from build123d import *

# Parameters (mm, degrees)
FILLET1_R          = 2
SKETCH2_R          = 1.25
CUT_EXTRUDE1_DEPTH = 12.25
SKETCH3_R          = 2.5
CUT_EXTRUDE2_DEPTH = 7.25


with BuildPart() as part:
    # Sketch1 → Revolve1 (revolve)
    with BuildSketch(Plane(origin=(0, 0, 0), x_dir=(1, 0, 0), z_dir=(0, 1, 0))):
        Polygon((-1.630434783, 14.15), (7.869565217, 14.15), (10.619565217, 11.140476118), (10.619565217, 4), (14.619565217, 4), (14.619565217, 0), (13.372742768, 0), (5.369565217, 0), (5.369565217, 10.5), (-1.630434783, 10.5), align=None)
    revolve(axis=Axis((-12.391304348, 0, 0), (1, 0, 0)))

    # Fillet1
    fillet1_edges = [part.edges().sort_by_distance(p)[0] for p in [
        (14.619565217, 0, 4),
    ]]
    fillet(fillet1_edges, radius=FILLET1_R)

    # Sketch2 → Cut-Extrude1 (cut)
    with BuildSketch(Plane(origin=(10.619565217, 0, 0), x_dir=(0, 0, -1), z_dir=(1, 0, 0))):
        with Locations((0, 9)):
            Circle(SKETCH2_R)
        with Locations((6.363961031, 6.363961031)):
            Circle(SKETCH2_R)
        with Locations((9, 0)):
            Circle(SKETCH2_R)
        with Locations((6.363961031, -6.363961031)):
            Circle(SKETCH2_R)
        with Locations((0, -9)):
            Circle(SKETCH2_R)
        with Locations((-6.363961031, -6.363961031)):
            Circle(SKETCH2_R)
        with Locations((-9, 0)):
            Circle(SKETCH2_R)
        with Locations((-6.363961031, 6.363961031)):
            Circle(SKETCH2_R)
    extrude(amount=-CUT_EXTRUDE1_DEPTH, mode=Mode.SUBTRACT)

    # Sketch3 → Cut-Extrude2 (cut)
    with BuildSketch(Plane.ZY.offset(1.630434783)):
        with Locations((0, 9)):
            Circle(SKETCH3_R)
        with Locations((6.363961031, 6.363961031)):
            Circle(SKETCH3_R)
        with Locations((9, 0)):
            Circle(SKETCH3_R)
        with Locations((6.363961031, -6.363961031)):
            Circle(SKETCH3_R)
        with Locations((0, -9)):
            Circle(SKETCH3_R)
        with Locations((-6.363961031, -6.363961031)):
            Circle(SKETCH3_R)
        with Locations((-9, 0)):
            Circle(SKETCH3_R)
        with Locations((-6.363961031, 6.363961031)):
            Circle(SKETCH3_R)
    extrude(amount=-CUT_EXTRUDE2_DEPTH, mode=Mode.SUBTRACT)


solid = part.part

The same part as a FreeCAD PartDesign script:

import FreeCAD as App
import Part
import Sketcher

V = App.Vector
Q = App.Units.Quantity


def edges_at(feature, points):
    """Names of the edges that pass closest to the given points."""
    edges = feature.Shape.Edges
    near = lambda p: min(range(len(edges)), key=lambda i: edges[i].distToShape(Part.Vertex(*p))[0])
    return sorted({f"Edge{near(p) + 1}" for p in points})

doc = App.newDocument("Part")
params = doc.addObject("Spreadsheet::Sheet", "Params")
for row, (alias, value) in enumerate([
    ("sketch1_width", "7 mm"),
    ("sketch1_width2", "4 mm"),
    ("sketch1_width3", "9.5 mm"),
    ("sketch1_height", "10.5 mm"),
    ("sketch1_width4", "9.25 mm"),
    ("revolution_angle", "360 deg"),
    ("fillet_radius", "2 mm"),
    ("sketch2_diameter", "2.5 mm"),
    ("pocket1_length", "12.25 mm"),
    ("sketch3_diameter", "5 mm"),
    ("pocket2_length", "7.25 mm"),
], start=1):
    params.set(f"A{row}", alias)
    params.set(f"B{row}", "=" + value)
    params.setAlias(f"B{row}", alias)

body = doc.addObject("PartDesign::Body", "Body")

# Sketch on XZ plane
sketch1 = body.newObject("Sketcher::SketchObject", "Sketch")
sketch1.AttachmentSupport = (doc.getObject("XZ_Plane"), [""])
sketch1.MapMode = "FlatFace"
sketch1.addGeometry(Part.LineSegment(V(7.9, -14.2, 0), V(-1.6, -14.2, 0)), False)
sketch1.addGeometry(Part.LineSegment(V(-1.6, -14.2, 0), V(-1.6, -10.5, 0)), False)
sketch1.addGeometry(Part.LineSegment(V(-1.6, -10.5, 0), V(5.4, -10.5, 0)), False)
sketch1.addGeometry(Part.LineSegment(V(5.4, -10.5, 0), V(5.4, 0, 0)), False)
sketch1.addGeometry(Part.LineSegment(V(5.4, 0, 0), V(14.6, 0, 0)), False)
sketch1.addGeometry(Part.LineSegment(V(14.6, 0, 0), V(14.6, -4, 0)), False)
sketch1.addGeometry(Part.LineSegment(V(14.6, -4, 0), V(10.6, -4, 0)), False)
sketch1.addGeometry(Part.LineSegment(V(10.6, -4, 0), V(10.6, -11.1, 0)), False)
sketch1.addGeometry(Part.LineSegment(V(10.6, -11.1, 0), V(7.9, -14.2, 0)), False)
sketch1.addConstraint(Sketcher.Constraint("Coincident", 0, 2, 1, 1))
sketch1.addConstraint(Sketcher.Constraint("Coincident", 1, 2, 2, 1))
sketch1.addConstraint(Sketcher.Constraint("Coincident", 2, 2, 3, 1))
sketch1.addConstraint(Sketcher.Constraint("Coincident", 3, 2, 4, 1))
sketch1.addConstraint(Sketcher.Constraint("Coincident", 4, 2, 5, 1))
sketch1.addConstraint(Sketcher.Constraint("Coincident", 5, 2, 6, 1))
sketch1.addConstraint(Sketcher.Constraint("Coincident", 6, 2, 7, 1))
sketch1.addConstraint(Sketcher.Constraint("Coincident", 7, 2, 8, 1))
sketch1.addConstraint(Sketcher.Constraint("Coincident", 8, 2, 0, 1))
sketch1.addConstraint(Sketcher.Constraint("Horizontal", 0))
sketch1.addConstraint(Sketcher.Constraint("Vertical", 1))
sketch1.addConstraint(Sketcher.Constraint("Horizontal", 2))
sketch1.addConstraint(Sketcher.Constraint("Vertical", 3))
sketch1.addConstraint(Sketcher.Constraint("Horizontal", 4))
sketch1.addConstraint(Sketcher.Constraint("Vertical", 5))
sketch1.addConstraint(Sketcher.Constraint("Horizontal", 6))
sketch1.addConstraint(Sketcher.Constraint("Vertical", 7))
sketch1.addConstraint(Sketcher.Constraint("PointOnObject", 3, 2, -1))
sketch1.addConstraint(Sketcher.Constraint("Equal", 6, 5))
sketch1.addConstraint(Sketcher.Constraint("DistanceX", 2, 1, 2, 2, Q("7 mm")))
sketch1.addConstraint(Sketcher.Constraint("DistanceX", 6, 2, 6, 1, Q("4 mm")))
sketch1.addConstraint(Sketcher.Constraint("DistanceX", 0, 2, 0, 1, Q("9.5 mm")))
sketch1.addConstraint(Sketcher.Constraint("DistanceY", 3, 1, 3, 2, Q("10.5 mm")))
sketch1.addConstraint(Sketcher.Constraint("DistanceX", 4, 1, 4, 2, Q("9.25 mm")))
sketch1.addConstraint(Sketcher.Constraint("DistanceY", 1, 1, 1, 2, Q("3.65 mm")))
sketch1.addConstraint(Sketcher.Constraint("Angle", 8, Q("-132.42 deg")))
sketch1.addConstraint(Sketcher.Constraint("DistanceX", 0, 2, -1, 1, Q("1.630435 mm")))
sketch1.setExpression("Constraints[19]", "Params.sketch1_width")
sketch1.setExpression("Constraints[20]", "Params.sketch1_width2")
sketch1.setExpression("Constraints[21]", "Params.sketch1_width3")
sketch1.setExpression("Constraints[22]", "Params.sketch1_height")
sketch1.setExpression("Constraints[23]", "Params.sketch1_width4")
revolution = body.newObject("PartDesign::Revolution", "Revolution")
revolution.Profile = sketch1
revolution.ReferenceAxis = (sketch1, ["H_Axis"])
revolution.setExpression("Angle", "Params.revolution_angle")
doc.recompute()

fillet = body.newObject("PartDesign::Fillet", "Fillet")
fillet.Base = (revolution, edges_at(revolution, [(14.62, 0, 4)]))
fillet.setExpression("Radius", "Params.fillet_radius")

# Sketch on YZ plane
sketch2 = body.newObject("Sketcher::SketchObject", "Sketch001")
sketch2.AttachmentSupport = (doc.getObject("YZ_Plane"), [""])
sketch2.MapMode = "FlatFace"
sketch2.AttachmentOffset = App.Placement(V(0, 0, 10.619565), App.Rotation())
sketch2.addGeometry(Part.Circle(V(9, 0, 0), V(0, 0, 1), 1.2), False)
sketch2.addGeometry(Part.Circle(V(6.4, -6.4, 0), V(0, 0, 1), 1.2), False)
sketch2.addGeometry(Part.Circle(V(0, -9, 0), V(0, 0, 1), 1.2), False)
sketch2.addGeometry(Part.Circle(V(-6.4, -6.4, 0), V(0, 0, 1), 1.2), False)
sketch2.addGeometry(Part.Circle(V(-9, 0, 0), V(0, 0, 1), 1.2), False)
sketch2.addGeometry(Part.Circle(V(-6.4, 6.4, 0), V(0, 0, 1), 1.2), False)
sketch2.addGeometry(Part.Circle(V(0, 9, 0), V(0, 0, 1), 1.2), False)
sketch2.addGeometry(Part.Circle(V(6.4, 6.4, 0), V(0, 0, 1), 1.2), False)
sketch2.addConstraint(Sketcher.Constraint("Equal", 0, 1))
sketch2.addConstraint(Sketcher.Constraint("Equal", 1, 2))
sketch2.addConstraint(Sketcher.Constraint("Equal", 2, 3))
sketch2.addConstraint(Sketcher.Constraint("Equal", 3, 4))
sketch2.addConstraint(Sketcher.Constraint("Equal", 4, 5))
sketch2.addConstraint(Sketcher.Constraint("Equal", 5, 6))
sketch2.addConstraint(Sketcher.Constraint("Equal", 6, 7))
sketch2.addConstraint(Sketcher.Constraint("Symmetric", 0, 3, 4, 3, -1, 1))
sketch2.addConstraint(Sketcher.Constraint("Symmetric", 1, 3, 5, 3, -1, 1))
sketch2.addConstraint(Sketcher.Constraint("Symmetric", 2, 3, 6, 3, -1, 1))
sketch2.addConstraint(Sketcher.Constraint("Symmetric", 3, 3, 7, 3, -1, 1))
sketch2.addConstraint(Sketcher.Constraint("Symmetric", 1, 3, 3, 3, -2))
sketch2.addConstraint(Sketcher.Constraint("PointOnObject", 0, 3, -1))
sketch2.addConstraint(Sketcher.Constraint("PointOnObject", 2, 3, -2))
sketch2.addConstraint(Sketcher.Constraint("Diameter", 0, Q("2.5 mm")))
sketch2.addConstraint(Sketcher.Constraint("DistanceX", -1, 1, 0, 3, Q("9 mm")))
sketch2.addConstraint(Sketcher.Constraint("DistanceY", 2, 3, -1, 1, Q("9 mm")))
sketch2.addConstraint(Sketcher.Constraint("DistanceX", -1, 1, 1, 3, Q("6.363961 mm")))
sketch2.addConstraint(Sketcher.Constraint("DistanceY", 1, 3, -1, 1, Q("6.363961 mm")))
sketch2.setExpression("Constraints[14]", "Params.sketch2_diameter")
pocket1 = body.newObject("PartDesign::Pocket", "Pocket")
pocket1.Profile = sketch2
pocket1.setExpression("Length", "Params.pocket1_length")

# Sketch on YZ plane
sketch3 = body.newObject("Sketcher::SketchObject", "Sketch002")
sketch3.AttachmentSupport = (doc.getObject("YZ_Plane"), [""])
sketch3.MapMode = "FlatFace"
sketch3.AttachmentOffset = App.Placement(V(0, 0, -1.630435), App.Rotation())
sketch3.addGeometry(Part.Circle(V(9, 0, 0), V(0, 0, 1), 2.5), False)
sketch3.addGeometry(Part.Circle(V(6.4, 6.4, 0), V(0, 0, 1), 2.5), False)
sketch3.addGeometry(Part.Circle(V(0, 9, 0), V(0, 0, 1), 2.5), False)
sketch3.addGeometry(Part.Circle(V(-6.4, 6.4, 0), V(0, 0, 1), 2.5), False)
sketch3.addGeometry(Part.Circle(V(-9, 0, 0), V(0, 0, 1), 2.5), False)
sketch3.addGeometry(Part.Circle(V(-6.4, -6.4, 0), V(0, 0, 1), 2.5), False)
sketch3.addGeometry(Part.Circle(V(0, -9, 0), V(0, 0, 1), 2.5), False)
sketch3.addGeometry(Part.Circle(V(6.4, -6.4, 0), V(0, 0, 1), 2.5), False)
sketch3.addConstraint(Sketcher.Constraint("Equal", 0, 1))
sketch3.addConstraint(Sketcher.Constraint("Equal", 1, 2))
sketch3.addConstraint(Sketcher.Constraint("Equal", 2, 3))
sketch3.addConstraint(Sketcher.Constraint("Equal", 3, 4))
sketch3.addConstraint(Sketcher.Constraint("Equal", 4, 5))
sketch3.addConstraint(Sketcher.Constraint("Equal", 5, 6))
sketch3.addConstraint(Sketcher.Constraint("Equal", 6, 7))
sketch3.addConstraint(Sketcher.Constraint("Symmetric", 0, 3, 4, 3, -1, 1))
sketch3.addConstraint(Sketcher.Constraint("Symmetric", 1, 3, 5, 3, -1, 1))
sketch3.addConstraint(Sketcher.Constraint("Symmetric", 2, 3, 6, 3, -1, 1))
sketch3.addConstraint(Sketcher.Constraint("Symmetric", 3, 3, 7, 3, -1, 1))
sketch3.addConstraint(Sketcher.Constraint("Symmetric", 1, 3, 3, 3, -2))
sketch3.addConstraint(Sketcher.Constraint("PointOnObject", 0, 3, -1))
sketch3.addConstraint(Sketcher.Constraint("PointOnObject", 2, 3, -2))
sketch3.addConstraint(Sketcher.Constraint("Diameter", 0, Q("5 mm")))
sketch3.addConstraint(Sketcher.Constraint("DistanceX", -1, 1, 0, 3, Q("9 mm")))
sketch3.addConstraint(Sketcher.Constraint("DistanceY", -1, 1, 2, 3, Q("9 mm")))
sketch3.addConstraint(Sketcher.Constraint("DistanceX", -1, 1, 1, 3, Q("6.363961 mm")))
sketch3.addConstraint(Sketcher.Constraint("DistanceY", -1, 1, 1, 3, Q("6.363961 mm")))
sketch3.setExpression("Constraints[14]", "Params.sketch3_diameter")
pocket2 = body.newObject("PartDesign::Pocket", "Pocket001")
pocket2.Profile = sketch3
pocket2.setExpression("Length", "Params.pocket2_length")
pocket2.Reversed = True

doc.recompute()
